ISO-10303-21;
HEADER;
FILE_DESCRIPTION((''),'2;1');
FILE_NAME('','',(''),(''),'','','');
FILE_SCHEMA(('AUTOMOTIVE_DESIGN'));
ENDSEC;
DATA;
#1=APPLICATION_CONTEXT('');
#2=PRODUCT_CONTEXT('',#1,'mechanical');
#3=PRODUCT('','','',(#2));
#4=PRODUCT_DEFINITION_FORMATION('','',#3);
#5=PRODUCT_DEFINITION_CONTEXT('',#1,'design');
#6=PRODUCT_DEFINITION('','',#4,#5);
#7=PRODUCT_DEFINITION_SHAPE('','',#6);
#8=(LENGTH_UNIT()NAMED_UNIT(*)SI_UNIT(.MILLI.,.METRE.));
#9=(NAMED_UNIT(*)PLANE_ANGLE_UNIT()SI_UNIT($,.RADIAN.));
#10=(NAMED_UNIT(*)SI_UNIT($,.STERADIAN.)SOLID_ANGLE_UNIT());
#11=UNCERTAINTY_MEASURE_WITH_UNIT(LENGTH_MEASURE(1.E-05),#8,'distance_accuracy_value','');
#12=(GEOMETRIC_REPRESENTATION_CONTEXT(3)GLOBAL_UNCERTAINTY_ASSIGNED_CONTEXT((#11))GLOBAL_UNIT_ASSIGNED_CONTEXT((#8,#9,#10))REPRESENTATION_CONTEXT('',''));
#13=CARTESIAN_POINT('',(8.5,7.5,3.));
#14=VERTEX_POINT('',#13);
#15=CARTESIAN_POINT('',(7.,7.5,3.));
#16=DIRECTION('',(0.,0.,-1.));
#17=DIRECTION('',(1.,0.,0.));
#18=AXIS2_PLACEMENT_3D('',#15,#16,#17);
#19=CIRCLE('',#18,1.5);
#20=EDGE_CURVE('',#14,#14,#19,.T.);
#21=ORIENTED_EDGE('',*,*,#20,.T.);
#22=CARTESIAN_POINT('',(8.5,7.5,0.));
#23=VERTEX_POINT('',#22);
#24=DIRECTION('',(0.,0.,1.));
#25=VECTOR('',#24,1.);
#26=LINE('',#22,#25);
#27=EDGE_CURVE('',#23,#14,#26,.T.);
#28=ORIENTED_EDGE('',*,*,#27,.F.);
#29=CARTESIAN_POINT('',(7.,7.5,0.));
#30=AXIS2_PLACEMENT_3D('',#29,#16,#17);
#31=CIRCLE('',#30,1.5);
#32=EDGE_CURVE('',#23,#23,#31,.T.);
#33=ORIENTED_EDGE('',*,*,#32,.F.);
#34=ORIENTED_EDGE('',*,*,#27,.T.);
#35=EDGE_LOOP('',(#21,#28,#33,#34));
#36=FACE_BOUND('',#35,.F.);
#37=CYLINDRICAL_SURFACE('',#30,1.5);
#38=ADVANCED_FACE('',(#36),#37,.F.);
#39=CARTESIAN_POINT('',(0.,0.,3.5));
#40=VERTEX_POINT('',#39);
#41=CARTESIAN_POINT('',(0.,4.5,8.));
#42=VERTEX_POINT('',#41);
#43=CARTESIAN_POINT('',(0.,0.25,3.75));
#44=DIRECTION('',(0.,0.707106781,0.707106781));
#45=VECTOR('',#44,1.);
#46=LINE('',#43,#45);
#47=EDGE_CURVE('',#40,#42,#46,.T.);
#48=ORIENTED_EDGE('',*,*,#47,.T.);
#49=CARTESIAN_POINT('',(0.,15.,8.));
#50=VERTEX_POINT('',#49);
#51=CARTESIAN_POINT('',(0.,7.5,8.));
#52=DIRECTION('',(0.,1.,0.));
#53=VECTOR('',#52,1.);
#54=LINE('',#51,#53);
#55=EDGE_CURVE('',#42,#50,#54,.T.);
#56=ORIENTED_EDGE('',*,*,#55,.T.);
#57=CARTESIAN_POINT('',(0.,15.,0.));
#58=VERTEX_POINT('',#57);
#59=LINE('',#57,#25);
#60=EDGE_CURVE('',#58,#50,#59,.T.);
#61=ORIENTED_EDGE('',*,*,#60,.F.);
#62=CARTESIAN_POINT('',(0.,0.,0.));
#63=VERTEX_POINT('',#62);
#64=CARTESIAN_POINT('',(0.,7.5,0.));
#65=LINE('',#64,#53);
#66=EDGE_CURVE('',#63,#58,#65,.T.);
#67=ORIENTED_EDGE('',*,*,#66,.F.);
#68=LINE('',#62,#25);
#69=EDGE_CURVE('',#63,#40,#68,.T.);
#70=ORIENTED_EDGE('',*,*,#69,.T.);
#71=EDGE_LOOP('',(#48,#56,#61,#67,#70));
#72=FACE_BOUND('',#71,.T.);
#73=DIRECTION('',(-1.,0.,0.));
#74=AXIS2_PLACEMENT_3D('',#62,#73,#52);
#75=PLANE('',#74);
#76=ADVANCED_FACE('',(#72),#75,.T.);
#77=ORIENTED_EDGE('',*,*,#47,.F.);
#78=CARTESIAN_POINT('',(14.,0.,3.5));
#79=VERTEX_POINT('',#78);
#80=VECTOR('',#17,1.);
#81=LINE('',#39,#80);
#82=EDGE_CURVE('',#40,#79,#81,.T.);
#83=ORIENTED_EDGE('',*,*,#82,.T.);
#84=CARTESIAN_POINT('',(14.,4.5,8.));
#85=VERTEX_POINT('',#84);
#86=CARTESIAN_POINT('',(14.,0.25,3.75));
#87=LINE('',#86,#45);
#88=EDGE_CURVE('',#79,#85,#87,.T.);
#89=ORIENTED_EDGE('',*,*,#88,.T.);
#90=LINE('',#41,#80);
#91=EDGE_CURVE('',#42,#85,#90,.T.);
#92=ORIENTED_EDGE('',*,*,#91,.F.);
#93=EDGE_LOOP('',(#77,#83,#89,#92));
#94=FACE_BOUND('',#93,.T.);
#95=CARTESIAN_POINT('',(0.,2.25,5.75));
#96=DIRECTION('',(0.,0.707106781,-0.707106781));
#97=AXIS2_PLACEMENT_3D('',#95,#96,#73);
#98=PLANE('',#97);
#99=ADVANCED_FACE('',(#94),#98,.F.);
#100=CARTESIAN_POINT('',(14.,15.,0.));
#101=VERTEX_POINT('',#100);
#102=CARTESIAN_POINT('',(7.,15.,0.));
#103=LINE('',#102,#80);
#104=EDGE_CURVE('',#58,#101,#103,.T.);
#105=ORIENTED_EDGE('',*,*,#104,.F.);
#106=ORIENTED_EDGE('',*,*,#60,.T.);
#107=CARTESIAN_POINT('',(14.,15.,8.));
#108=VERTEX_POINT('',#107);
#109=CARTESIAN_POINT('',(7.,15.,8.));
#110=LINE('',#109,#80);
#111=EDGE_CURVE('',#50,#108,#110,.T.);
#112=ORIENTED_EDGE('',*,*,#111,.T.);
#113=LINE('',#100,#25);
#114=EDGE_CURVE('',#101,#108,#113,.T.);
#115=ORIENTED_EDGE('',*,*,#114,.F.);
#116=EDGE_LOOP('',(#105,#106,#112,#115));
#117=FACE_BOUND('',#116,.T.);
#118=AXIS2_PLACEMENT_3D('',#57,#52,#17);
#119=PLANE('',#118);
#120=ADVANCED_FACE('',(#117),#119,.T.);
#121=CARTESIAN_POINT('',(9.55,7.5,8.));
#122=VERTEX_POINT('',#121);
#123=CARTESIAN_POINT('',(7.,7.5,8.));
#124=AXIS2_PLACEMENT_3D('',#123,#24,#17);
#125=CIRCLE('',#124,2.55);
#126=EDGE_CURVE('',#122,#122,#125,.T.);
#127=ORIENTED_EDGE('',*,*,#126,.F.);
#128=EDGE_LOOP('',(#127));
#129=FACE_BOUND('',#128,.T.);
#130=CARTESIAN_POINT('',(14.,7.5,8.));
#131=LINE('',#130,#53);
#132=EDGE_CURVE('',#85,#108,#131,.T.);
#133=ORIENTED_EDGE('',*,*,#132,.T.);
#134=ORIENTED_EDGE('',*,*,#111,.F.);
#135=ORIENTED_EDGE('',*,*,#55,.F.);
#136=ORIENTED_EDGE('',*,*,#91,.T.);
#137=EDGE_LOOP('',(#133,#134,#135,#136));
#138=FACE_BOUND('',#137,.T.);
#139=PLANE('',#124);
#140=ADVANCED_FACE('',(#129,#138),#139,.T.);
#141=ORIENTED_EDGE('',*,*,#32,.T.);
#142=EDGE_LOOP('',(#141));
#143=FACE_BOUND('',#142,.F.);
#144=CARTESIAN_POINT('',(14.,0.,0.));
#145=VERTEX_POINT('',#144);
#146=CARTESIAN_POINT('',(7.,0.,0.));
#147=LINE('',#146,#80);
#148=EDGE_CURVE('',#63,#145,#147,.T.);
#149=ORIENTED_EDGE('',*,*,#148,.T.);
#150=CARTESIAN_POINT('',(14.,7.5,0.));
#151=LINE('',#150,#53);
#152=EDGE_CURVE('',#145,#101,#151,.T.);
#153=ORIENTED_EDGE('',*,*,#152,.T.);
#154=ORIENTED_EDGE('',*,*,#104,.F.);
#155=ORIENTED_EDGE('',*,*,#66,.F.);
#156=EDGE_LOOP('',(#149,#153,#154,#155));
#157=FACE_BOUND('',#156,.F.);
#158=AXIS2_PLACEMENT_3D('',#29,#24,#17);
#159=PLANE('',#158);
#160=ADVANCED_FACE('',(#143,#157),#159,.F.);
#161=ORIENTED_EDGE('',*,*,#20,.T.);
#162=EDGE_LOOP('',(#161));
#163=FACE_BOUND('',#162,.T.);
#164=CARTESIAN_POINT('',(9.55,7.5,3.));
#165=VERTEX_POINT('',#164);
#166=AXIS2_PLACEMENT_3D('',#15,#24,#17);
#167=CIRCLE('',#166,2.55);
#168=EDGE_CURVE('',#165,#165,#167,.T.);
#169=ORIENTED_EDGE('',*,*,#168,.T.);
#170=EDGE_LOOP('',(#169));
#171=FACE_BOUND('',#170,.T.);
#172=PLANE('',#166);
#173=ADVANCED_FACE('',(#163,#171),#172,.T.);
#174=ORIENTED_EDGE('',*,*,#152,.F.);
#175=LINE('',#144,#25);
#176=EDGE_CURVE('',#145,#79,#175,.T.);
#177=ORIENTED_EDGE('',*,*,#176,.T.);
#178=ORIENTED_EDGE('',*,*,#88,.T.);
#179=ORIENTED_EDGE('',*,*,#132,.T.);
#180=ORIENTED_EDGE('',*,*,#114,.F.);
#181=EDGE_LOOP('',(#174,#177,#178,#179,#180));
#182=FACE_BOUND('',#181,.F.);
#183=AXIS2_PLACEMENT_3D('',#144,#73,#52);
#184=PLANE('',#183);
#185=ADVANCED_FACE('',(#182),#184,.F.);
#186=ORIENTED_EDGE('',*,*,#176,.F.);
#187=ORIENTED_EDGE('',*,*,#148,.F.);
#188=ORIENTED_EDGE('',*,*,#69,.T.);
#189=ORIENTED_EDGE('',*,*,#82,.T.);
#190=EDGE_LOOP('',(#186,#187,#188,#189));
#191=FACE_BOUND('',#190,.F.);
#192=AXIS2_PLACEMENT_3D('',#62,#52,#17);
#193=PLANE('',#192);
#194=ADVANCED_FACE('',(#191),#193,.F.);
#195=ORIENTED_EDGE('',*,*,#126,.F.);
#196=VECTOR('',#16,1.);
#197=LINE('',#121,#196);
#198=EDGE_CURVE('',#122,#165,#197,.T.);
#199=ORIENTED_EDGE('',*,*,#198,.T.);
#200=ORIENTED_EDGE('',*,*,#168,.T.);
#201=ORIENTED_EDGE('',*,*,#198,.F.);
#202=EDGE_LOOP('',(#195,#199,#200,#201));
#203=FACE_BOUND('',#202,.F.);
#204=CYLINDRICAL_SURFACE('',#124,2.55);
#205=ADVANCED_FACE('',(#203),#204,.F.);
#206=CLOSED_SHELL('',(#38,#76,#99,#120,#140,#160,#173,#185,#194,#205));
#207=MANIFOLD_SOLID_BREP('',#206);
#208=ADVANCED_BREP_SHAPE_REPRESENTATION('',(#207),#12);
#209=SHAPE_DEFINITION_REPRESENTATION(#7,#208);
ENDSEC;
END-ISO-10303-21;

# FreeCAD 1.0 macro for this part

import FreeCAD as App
import Part
import Sketcher

V = App.Vector


def edges_at(feature, points):
    """Names of the edges that pass closest to the given points."""
    edges = feature.Shape.Edges
    near = lambda p: min(range(len(edges)), key=lambda i: edges[i].distToShape(Part.Vertex(*p))[0])
    return sorted({f"Edge{near(p) + 1}" for p in points})

doc = App.newDocument("Part")
body = doc.addObject("PartDesign::Body", "Body")

sketch1 = body.newObject("Sketcher::SketchObject", "Sketch")
sketch1.AttachmentSupport = (doc.getObject("XY_Plane"), [""])
sketch1.MapMode = "FlatFace"
sketch1.addGeometry([
    Part.LineSegment(V(0, 15, 0), V(0, 0, 0)),
    Part.LineSegment(V(0, 0, 0), V(14, 0, 0)),
    Part.LineSegment(V(14, 0, 0), V(14, 15, 0)),
    Part.LineSegment(V(14, 15, 0), V(0, 15, 0)),
], False)
sketch1.addConstraint([
    Sketcher.Constraint("Coincident", 0, 2, 1, 1),
    Sketcher.Constraint("Coincident", 1, 2, 2, 1),
    Sketcher.Constraint("Coincident", 2, 2, 3, 1),
    Sketcher.Constraint("Coincident", 3, 2, 0, 1),
    Sketcher.Constraint("Vertical", 0),
    Sketcher.Constraint("Horizontal", 1),
    Sketcher.Constraint("Vertical", 2),
    Sketcher.Constraint("Horizontal", 3),
    Sketcher.Constraint("Coincident", 0, 2, -1, 1),
    Sketcher.Constraint("DistanceX", 1, 1, 1, 2, 14.0),
    Sketcher.Constraint("DistanceY", 0, 2, 0, 1, 15.0),
])
pad1 = body.newObject("PartDesign::Pad", "Pad")
pad1.Profile = sketch1
pad1.Length = 8

sketch2 = body.newObject("Sketcher::SketchObject", "Sketch001")
sketch2.AttachmentSupport = (doc.getObject("XY_Plane"), [""])
sketch2.MapMode = "FlatFace"
sketch2.addGeometry(Part.Circle(V(7, 7.5, 0), V(0, 0, 1), 1.5), False)
sketch2.addConstraint([
    Sketcher.Constraint("Diameter", 0, 3.0),
    Sketcher.Constraint("DistanceX", -1, 1, 0, 3, 7.0),
    Sketcher.Constraint("DistanceY", -1, 1, 0, 3, 7.5),
])
pocket1 = body.newObject("PartDesign::Pocket", "Pocket")
pocket1.Profile = sketch2
pocket1.Type = "ThroughAll"
pocket1.Reversed = True

sketch3 = body.newObject("Sketcher::SketchObject", "Sketch002")
sketch3.AttachmentSupport = (doc.getObject("XY_Plane"), [""])
sketch3.MapMode = "FlatFace"
sketch3.AttachmentOffset = App.Placement(V(0, 0, 8), App.Rotation())
sketch3.addGeometry(Part.Circle(V(7, 7.5, 0), V(0, 0, 1), 2.5), False)
sketch3.addConstraint([
    Sketcher.Constraint("Diameter", 0, 5.1),
    Sketcher.Constraint("DistanceX", -1, 1, 0, 3, 7.0),
    Sketcher.Constraint("DistanceY", -1, 1, 0, 3, 7.5),
])
pocket2 = body.newObject("PartDesign::Pocket", "Pocket001")
pocket2.Profile = sketch3
pocket2.Length = 5
doc.recompute()

chamfer = body.newObject("PartDesign::Chamfer", "Chamfer")
chamfer.Base = (pocket2, edges_at(pocket2, [(7, 0, 8)]))
chamfer.Size = 4.5

doc.recompute()
